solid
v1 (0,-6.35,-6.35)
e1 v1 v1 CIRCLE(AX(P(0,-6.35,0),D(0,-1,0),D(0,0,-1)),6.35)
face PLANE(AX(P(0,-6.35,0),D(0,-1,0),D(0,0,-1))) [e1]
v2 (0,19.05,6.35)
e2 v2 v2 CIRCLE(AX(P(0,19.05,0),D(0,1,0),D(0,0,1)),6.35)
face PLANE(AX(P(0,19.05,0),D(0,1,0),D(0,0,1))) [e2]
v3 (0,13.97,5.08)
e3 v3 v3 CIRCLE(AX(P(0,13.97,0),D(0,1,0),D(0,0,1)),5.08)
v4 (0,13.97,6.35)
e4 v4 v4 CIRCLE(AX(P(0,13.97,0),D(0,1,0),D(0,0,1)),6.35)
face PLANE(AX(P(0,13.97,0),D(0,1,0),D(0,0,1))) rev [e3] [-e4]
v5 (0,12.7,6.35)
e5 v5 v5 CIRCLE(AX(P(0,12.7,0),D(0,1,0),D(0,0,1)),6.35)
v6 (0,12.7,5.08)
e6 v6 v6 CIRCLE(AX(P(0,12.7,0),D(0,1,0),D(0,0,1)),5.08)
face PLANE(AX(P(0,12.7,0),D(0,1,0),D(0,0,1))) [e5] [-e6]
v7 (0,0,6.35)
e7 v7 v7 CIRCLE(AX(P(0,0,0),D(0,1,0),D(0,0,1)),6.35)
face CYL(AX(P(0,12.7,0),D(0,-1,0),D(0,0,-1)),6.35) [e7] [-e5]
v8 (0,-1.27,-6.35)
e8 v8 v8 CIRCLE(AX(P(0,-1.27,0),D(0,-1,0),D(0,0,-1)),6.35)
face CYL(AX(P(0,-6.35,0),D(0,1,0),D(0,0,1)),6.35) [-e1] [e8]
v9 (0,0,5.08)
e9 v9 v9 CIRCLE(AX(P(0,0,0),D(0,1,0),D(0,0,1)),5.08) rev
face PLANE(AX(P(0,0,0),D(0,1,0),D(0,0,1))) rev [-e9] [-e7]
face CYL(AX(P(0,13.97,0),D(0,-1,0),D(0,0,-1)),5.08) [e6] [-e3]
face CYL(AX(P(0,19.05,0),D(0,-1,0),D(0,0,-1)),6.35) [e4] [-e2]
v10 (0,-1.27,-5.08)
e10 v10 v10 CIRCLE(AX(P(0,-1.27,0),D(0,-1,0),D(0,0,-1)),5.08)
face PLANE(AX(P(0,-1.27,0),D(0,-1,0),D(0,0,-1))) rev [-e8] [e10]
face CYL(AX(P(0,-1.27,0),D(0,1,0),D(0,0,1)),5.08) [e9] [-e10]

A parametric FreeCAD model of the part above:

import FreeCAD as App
import Part
import Sketcher
Q = App.Units.Quantity

doc = App.newDocument("Part")
body = doc.addObject("PartDesign::Body", "Body")

sketch1 = body.newObject("Sketcher::SketchObject", "Sketch")
sketch1.AttachmentSupport = (doc.getObject("XZ_Plane"), [""])
sketch1.MapMode = "FlatFace"
sketch1.addGeometry(Part.Circle(App.Vector(0, 0, 0), App.Vector(0, 0, 1), 6), False)
sketch1.addConstraint([
    Sketcher.Constraint("Coincident", 0, 3, -1, 1),
    Sketcher.Constraint("Diameter", 0, Q("0.5 in")),
])
pad1 = body.newObject("PartDesign::Pad", "Pad")
pad1.Profile = sketch1
pad1.Length = Q("0.5 in")
pad1.Reversed = True

sketch2 = body.newObject("Sketcher::SketchObject", "Sketch001")
sketch2.AttachmentSupport = (doc.getObject("XZ_Plane"), [""])
sketch2.MapMode = "FlatFace"
sketch2.AttachmentOffset = App.Placement(App.Vector(0, 0, -0.5 * 25.4), App.Rotation())
sketch2.addGeometry(Part.Circle(App.Vector(0, 0, 0), App.Vector(0, 0, 1), 5), False)
sketch2.addConstraint([
    Sketcher.Constraint("Coincident", 0, 3, -1, 1),
    Sketcher.Constraint("Diameter", 0, Q("0.4 in")),
])
pad2 = body.newObject("PartDesign::Pad", "Pad001")
pad2.Profile = sketch2
pad2.Length = Q("0.05 in")
pad2.Reversed = True

sketch3 = body.newObject("Sketcher::SketchObject", "Sketch002")
sketch3.AttachmentSupport = (doc.getObject("XZ_Plane"), [""])
sketch3.MapMode = "FlatFace"
sketch3.AttachmentOffset = App.Placement(App.Vector(0, 0, -0.55 * 25.4), App.Rotation())
sketch3.addGeometry(Part.Circle(App.Vector(0, 0, 0), App.Vector(0, 0, 1), 6), False)
sketch3.addConstraint([
    Sketcher.Constraint("Coincident", 0, 3, -1, 1),
    Sketcher.Constraint("Diameter", 0, Q("0.5 in")),
])
pad3 = body.newObject("PartDesign::Pad", "Pad002")
pad3.Profile = sketch3
pad3.Length = Q("0.2 in")
pad3.Reversed = True

sketch4 = body.newObject("Sketcher::SketchObject", "Sketch003")
sketch4.AttachmentSupport = (doc.getObject("XZ_Plane"), [""])
sketch4.MapMode = "FlatFace"
sketch4.AttachmentOffset = App.Placement(App.Vector(0, 0, 0.05 * 25.4), App.Rotation())
sketch4.addGeometry(Part.Circle(App.Vector(0, 0, 0), App.Vector(0, 0, 1), 5), False)
sketch4.addConstraint([
    Sketcher.Constraint("Coincident", 0, 3, -1, 1),
    Sketcher.Constraint("Diameter", 0, Q("0.4 in")),
])
pad4 = body.newObject("PartDesign::Pad", "Pad003")
pad4.Profile = sketch4
pad4.Length = Q("0.05 in")
pad4.Reversed = True

sketch5 = body.newObject("Sketcher::SketchObject", "Sketch004")
sketch5.AttachmentSupport = (doc.getObject("XZ_Plane"), [""])
sketch5.MapMode = "FlatFace"
sketch5.AttachmentOffset = App.Placement(App.Vector(0, 0, 0.25 * 25.4), App.Rotation())
sketch5.addGeometry(Part.Circle(App.Vector(0, 0, 0), App.Vector(0, 0, 1), 6), False)
sketch5.addConstraint([
    Sketcher.Constraint("Coincident", 0, 3, -1, 1),
    Sketcher.Constraint("Diameter", 0, Q("0.5 in")),
])
pad5 = body.newObject("PartDesign::Pad", "Pad004")
pad5.Profile = sketch5
pad5.Length = Q("0.2 in")
pad5.Reversed = True

doc.recompute()
